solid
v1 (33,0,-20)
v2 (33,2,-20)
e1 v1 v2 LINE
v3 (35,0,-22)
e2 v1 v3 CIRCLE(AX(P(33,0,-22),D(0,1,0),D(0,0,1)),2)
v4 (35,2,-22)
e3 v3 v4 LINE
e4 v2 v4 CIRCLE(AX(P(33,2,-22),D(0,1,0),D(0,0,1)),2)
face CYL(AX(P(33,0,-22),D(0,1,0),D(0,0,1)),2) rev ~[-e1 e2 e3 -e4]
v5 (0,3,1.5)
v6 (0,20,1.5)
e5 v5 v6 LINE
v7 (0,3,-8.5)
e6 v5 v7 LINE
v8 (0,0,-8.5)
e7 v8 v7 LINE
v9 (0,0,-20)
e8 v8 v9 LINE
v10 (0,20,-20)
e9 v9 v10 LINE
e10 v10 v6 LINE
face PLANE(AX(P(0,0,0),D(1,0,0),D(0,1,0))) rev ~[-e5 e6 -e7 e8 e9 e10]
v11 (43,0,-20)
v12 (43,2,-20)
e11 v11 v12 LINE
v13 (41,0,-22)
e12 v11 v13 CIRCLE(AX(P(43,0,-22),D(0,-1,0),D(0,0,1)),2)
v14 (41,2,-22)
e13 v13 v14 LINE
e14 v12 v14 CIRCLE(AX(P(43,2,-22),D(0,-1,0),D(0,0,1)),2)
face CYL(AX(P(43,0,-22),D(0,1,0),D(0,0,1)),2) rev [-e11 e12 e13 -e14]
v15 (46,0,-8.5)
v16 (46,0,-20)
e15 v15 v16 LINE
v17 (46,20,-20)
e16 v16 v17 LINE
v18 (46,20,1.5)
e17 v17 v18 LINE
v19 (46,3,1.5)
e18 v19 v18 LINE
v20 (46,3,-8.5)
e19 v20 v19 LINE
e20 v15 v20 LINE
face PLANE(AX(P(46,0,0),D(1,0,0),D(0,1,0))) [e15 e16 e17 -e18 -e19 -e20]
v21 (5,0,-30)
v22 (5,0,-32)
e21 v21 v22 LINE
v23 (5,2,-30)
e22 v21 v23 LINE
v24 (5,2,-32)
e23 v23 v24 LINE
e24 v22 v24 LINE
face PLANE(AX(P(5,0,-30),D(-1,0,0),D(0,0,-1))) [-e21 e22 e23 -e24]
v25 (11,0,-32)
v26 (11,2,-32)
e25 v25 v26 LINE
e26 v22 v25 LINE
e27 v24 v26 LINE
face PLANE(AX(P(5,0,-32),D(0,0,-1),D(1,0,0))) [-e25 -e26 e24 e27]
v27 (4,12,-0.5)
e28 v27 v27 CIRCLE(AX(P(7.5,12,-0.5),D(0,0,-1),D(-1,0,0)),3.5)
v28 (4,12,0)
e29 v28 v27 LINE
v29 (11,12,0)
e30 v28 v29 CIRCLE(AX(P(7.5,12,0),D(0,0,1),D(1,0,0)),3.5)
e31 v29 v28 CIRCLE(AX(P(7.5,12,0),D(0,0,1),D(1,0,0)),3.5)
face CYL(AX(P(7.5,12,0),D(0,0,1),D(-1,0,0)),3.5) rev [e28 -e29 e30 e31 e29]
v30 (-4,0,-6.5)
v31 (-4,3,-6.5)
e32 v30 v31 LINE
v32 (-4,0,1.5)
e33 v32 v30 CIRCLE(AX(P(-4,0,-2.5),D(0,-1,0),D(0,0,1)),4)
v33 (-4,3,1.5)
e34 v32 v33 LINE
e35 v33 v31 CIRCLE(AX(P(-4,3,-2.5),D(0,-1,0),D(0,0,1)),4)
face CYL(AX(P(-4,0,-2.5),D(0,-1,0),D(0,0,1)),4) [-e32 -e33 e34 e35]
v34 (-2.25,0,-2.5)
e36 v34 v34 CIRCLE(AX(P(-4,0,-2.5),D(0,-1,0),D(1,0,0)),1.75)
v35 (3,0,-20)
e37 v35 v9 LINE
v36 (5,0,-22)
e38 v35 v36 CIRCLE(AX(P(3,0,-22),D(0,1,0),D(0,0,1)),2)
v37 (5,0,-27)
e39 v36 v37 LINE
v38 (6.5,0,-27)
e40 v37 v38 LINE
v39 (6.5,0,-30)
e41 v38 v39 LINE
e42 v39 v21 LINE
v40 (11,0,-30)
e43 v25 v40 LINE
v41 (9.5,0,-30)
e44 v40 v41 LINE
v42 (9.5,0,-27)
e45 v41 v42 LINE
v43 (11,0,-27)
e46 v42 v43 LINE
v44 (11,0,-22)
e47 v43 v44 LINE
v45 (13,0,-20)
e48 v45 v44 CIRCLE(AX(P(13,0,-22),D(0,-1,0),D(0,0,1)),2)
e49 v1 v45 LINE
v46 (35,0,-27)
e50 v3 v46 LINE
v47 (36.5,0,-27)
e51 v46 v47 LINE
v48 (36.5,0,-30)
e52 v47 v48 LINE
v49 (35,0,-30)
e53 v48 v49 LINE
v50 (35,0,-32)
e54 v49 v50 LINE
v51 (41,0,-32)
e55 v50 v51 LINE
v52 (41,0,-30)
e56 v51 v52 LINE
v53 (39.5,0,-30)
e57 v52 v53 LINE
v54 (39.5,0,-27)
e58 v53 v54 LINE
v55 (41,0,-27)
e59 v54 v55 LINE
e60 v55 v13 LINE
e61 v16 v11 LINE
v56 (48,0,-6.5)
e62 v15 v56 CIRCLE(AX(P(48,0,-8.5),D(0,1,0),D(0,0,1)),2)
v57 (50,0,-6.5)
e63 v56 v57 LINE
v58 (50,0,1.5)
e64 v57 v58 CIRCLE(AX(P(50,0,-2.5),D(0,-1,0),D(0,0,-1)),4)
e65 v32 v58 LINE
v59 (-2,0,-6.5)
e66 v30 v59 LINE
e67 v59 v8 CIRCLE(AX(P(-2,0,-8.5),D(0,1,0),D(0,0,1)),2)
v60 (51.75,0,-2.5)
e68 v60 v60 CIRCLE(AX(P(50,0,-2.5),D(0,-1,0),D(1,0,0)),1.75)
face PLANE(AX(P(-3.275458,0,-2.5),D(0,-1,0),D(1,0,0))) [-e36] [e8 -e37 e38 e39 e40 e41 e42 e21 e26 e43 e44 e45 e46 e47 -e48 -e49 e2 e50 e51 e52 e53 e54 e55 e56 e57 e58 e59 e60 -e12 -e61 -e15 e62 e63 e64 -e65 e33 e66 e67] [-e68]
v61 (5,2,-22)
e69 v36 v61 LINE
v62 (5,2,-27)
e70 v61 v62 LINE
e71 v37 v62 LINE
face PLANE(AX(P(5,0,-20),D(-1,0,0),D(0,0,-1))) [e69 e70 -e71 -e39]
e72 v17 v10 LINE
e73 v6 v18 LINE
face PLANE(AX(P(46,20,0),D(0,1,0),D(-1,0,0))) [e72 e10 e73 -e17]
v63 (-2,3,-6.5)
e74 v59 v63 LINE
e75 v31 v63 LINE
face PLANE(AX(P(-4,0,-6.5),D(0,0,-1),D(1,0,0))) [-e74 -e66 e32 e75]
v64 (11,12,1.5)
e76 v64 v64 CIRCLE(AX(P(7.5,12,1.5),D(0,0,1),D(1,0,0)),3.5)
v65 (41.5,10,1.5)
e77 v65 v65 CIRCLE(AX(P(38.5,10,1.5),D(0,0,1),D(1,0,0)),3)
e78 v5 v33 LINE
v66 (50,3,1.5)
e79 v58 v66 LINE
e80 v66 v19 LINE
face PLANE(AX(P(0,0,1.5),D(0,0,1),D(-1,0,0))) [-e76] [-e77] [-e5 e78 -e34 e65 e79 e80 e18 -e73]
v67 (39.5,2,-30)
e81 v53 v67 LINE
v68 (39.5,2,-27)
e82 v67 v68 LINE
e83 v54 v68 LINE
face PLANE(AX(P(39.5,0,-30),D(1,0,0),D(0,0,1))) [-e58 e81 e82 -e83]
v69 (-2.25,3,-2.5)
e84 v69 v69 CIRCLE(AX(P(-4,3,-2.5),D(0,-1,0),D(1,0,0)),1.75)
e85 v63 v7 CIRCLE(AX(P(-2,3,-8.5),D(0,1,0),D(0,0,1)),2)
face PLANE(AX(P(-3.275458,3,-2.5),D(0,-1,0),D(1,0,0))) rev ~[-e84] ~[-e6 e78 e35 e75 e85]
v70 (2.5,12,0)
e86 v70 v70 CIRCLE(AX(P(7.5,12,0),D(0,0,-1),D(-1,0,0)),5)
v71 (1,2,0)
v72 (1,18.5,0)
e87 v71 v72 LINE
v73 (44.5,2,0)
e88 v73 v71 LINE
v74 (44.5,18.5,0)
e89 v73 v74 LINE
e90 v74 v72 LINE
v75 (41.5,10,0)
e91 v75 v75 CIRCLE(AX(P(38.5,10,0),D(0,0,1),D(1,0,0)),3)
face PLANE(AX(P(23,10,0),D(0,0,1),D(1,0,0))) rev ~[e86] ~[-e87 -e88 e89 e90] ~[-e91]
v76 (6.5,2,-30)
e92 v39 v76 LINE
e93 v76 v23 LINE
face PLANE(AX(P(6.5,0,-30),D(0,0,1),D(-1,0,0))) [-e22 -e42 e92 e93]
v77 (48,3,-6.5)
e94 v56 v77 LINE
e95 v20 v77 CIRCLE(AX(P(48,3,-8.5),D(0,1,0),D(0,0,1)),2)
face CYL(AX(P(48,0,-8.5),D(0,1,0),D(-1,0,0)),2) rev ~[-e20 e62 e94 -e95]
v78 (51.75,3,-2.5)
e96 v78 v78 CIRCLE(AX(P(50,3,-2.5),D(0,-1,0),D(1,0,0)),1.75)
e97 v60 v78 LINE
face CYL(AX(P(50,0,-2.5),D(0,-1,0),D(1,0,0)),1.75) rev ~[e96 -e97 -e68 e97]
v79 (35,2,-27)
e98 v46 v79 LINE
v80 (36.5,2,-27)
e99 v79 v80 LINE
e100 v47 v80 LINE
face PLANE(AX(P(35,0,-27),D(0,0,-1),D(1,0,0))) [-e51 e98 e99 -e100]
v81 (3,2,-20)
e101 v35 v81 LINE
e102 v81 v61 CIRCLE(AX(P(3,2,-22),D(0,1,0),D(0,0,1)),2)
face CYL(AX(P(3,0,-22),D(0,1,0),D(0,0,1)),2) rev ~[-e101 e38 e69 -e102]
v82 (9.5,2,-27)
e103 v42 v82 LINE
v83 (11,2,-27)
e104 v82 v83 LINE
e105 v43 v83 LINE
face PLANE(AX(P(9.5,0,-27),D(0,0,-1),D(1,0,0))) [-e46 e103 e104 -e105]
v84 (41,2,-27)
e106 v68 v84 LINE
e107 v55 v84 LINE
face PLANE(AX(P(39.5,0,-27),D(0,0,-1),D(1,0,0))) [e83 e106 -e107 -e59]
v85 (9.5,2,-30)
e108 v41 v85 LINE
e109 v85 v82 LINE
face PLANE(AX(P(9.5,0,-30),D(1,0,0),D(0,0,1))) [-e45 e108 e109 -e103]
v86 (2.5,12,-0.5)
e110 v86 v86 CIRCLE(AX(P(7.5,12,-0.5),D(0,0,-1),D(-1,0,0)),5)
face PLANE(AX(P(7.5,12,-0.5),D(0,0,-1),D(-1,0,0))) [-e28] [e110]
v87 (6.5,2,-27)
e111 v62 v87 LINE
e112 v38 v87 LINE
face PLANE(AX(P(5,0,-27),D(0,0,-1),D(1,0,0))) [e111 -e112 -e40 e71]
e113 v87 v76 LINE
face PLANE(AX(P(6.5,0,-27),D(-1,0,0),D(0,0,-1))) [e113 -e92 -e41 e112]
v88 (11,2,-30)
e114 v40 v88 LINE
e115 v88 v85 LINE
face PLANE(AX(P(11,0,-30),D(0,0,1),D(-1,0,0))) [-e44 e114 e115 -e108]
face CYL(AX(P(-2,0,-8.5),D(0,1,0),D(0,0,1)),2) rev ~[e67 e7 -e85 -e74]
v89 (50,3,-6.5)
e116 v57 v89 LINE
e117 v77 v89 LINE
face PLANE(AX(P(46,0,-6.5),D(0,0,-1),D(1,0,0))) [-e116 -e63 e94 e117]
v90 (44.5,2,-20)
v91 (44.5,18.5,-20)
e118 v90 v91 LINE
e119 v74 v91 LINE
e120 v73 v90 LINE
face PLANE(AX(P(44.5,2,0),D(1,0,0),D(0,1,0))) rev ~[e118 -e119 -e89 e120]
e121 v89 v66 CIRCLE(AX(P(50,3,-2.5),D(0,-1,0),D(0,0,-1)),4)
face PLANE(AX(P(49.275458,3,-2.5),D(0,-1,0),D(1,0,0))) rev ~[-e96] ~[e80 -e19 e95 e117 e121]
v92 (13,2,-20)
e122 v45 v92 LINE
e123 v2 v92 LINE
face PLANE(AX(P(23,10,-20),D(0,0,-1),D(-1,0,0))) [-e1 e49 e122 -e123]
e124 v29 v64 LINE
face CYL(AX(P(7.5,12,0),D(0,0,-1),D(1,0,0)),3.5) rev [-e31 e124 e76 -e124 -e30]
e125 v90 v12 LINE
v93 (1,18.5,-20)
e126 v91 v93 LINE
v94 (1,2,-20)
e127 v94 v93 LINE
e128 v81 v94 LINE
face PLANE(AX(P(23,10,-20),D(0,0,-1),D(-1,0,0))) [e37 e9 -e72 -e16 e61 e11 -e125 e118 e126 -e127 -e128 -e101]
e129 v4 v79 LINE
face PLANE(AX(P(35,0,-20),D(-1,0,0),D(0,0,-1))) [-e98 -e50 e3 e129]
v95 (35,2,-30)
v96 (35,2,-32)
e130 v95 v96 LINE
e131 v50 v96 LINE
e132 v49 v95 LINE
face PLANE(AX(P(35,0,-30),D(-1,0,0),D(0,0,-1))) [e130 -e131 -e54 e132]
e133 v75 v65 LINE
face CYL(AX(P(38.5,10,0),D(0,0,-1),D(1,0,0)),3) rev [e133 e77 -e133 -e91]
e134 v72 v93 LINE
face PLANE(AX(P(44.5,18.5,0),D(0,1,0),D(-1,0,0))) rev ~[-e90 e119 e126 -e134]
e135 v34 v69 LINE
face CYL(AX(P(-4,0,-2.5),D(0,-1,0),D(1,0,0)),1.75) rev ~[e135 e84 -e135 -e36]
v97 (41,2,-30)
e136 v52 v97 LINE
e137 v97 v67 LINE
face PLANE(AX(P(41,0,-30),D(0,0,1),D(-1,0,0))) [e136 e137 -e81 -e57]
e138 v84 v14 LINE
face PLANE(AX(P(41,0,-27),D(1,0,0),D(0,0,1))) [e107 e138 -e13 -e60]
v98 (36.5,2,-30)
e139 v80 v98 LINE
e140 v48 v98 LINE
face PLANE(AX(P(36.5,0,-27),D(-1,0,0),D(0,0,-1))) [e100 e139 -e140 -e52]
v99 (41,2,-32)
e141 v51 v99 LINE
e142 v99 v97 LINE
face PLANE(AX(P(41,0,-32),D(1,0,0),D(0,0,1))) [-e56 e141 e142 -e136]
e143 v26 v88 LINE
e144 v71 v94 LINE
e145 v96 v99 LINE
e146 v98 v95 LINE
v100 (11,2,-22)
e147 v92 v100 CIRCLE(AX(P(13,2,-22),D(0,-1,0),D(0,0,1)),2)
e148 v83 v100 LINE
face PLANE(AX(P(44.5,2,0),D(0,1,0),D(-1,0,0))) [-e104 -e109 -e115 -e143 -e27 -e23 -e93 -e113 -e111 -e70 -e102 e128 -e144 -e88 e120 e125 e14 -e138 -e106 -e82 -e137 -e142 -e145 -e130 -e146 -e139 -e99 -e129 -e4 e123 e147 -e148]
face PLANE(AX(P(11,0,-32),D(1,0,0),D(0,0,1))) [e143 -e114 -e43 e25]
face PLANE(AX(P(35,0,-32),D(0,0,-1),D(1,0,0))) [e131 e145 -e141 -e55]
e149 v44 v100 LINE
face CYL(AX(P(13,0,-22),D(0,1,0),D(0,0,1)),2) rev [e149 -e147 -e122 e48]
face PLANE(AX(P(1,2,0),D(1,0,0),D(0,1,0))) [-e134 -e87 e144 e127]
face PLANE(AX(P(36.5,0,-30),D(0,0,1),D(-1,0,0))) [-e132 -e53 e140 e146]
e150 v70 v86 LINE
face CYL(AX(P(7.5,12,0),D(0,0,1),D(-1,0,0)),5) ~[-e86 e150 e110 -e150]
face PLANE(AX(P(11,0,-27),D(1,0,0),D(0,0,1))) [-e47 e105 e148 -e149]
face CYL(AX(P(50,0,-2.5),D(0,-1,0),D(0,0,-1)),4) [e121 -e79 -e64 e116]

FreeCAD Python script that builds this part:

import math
import FreeCAD as App
import Part
import Sketcher
Q = App.Units.Quantity


def edges_at(feature, points):
    """Names of the edges that pass closest to the given points."""
    edges = feature.Shape.Edges
    near = lambda p: min(range(len(edges)), key=lambda i: edges[i].distToShape(Part.Vertex(*p))[0])
    return sorted({f"Edge{near(p) + 1}" for p in points})


def add_polygon(sketch, points):
    """Adds a closed chain of lines whose ends are joined by coincident constraints."""
    first, n = sketch.GeometryCount, len(points)
    for a, b in zip(points, points[1:] + points[:1]):
        sketch.addGeometry(Part.LineSegment(App.Vector(*a, 0), App.Vector(*b, 0)), False)
    for i in range(n):
        sketch.addConstraint(Sketcher.Constraint("Coincident", first + i, 2, first + (i + 1) % n, 1))

doc = App.newDocument("Part")
body = doc.addObject("PartDesign::Body", "Body")

sketch1 = doc.addObject("Sketcher::SketchObject", "Sketch")
body.addObject(sketch1)
sketch1.AttachmentSupport = (doc.XY_Plane, [""])
sketch1.MapMode = "FlatFace"
add_polygon(sketch1, [(0, 20), (0, 0), (46, 0), (46, 20)])
sketch1.addGeometry(Part.Circle(App.Vector(38.5, 10, 0), App.Vector(0, 0, 1), 3), False)
sketch1.addGeometry(Part.Circle(App.Vector(7.5, 12, 0), App.Vector(0, 0, 1), 3.5), False)
sketch1.addConstraint(Sketcher.Constraint("Vertical", 0))
sketch1.addConstraint(Sketcher.Constraint("Horizontal", 1))
sketch1.addConstraint(Sketcher.Constraint("Vertical", 2))
sketch1.addConstraint(Sketcher.Constraint("Horizontal", 3))
sketch1.addConstraint(Sketcher.Constraint("Coincident", 0, 2, -1, 1))
sketch1.addConstraint(Sketcher.Constraint("Diameter", 4, Q("6 mm")))
sketch1.addConstraint(Sketcher.Constraint("Diameter", 5, Q("7 mm")))
sketch1.addConstraint(Sketcher.Constraint("DistanceX", 1, 1, 1, 2, Q("46 mm")))
sketch1.addConstraint(Sketcher.Constraint("DistanceY", 0, 2, 0, 1, Q("20 mm")))
sketch1.addConstraint(Sketcher.Constraint("DistanceY", -1, 1, 4, 3, Q("10 mm")))
sketch1.addConstraint(Sketcher.Constraint("DistanceY", -1, 1, 5, 3, Q("12 mm")))
sketch1.addConstraint(Sketcher.Constraint("DistanceX", 5, 3, 4, 3, Q("31 mm")))
sketch1.addConstraint(Sketcher.Constraint("DistanceX", -1, 1, 4, 3, Q("38.5 mm")))
pad1 = doc.addObject("PartDesign::Pad", "Pad")
body.addObject(pad1)
pad1.Profile = sketch1
pad1.Length = 1.5

sketch2 = doc.addObject("Sketcher::SketchObject", "Sketch001")
body.addObject(sketch2)
sketch2.AttachmentSupport = (doc.XY_Plane, [""])
sketch2.MapMode = "FlatFace"
sketch2.addGeometry(Part.Circle(App.Vector(7.5, 12, 0), App.Vector(0, 0, 1), 5), False)
sketch2.addGeometry(Part.Circle(App.Vector(7.5, 12, 0), App.Vector(0, 0, 1), 3.5), False)
sketch2.addConstraint(Sketcher.Constraint("Coincident", 1, 3, 0, 3))
sketch2.addConstraint(Sketcher.Constraint("Diameter", 0, Q("10 mm")))
sketch2.addConstraint(Sketcher.Constraint("Diameter", 1, Q("7 mm")))
sketch2.addConstraint(Sketcher.Constraint("DistanceY", -1, 1, 0, 3, Q("12 mm")))
sketch2.addConstraint(Sketcher.Constraint("DistanceX", -1, 1, 0, 3, Q("7.5 mm")))
pad2 = doc.addObject("PartDesign::Pad", "Pad001")
body.addObject(pad2)
pad2.Profile = sketch2
pad2.Length = 0.5
pad2.Reversed = True

sketch3 = doc.addObject("Sketcher::SketchObject", "Sketch002")
body.addObject(sketch3)
sketch3.AttachmentSupport = (doc.XY_Plane, [""])
sketch3.MapMode = "FlatFace"
add_polygon(sketch3, [(46, 20), (46, 0), (0, 0), (0, 20)])
add_polygon(sketch3, [(1, 2), (44, 2), (44, 18), (1, 18)])
sketch3.addConstraint(Sketcher.Constraint("Vertical", 0))
sketch3.addConstraint(Sketcher.Constraint("Horizontal", 1))
sketch3.addConstraint(Sketcher.Constraint("Vertical", 2))
sketch3.addConstraint(Sketcher.Constraint("Horizontal", 3))
sketch3.addConstraint(Sketcher.Constraint("Horizontal", 4))
sketch3.addConstraint(Sketcher.Constraint("Vertical", 5))
sketch3.addConstraint(Sketcher.Constraint("Horizontal", 6))
sketch3.addConstraint(Sketcher.Constraint("Vertical", 7))
sketch3.addConstraint(Sketcher.Constraint("Coincident", 1, 2, -1, 1))
sketch3.addConstraint(Sketcher.Constraint("DistanceX", 1, 2, 1, 1, Q("46 mm")))
sketch3.addConstraint(Sketcher.Constraint("DistanceY", 0, 2, 0, 1, Q("20 mm")))
sketch3.addConstraint(Sketcher.Constraint("DistanceX", 4, 1, 4, 2, Q("43.5 mm")))
sketch3.addConstraint(Sketcher.Constraint("DistanceY", 5, 1, 5, 2, Q("16.5 mm")))
sketch3.addConstraint(Sketcher.Constraint("DistanceY", -1, 1, 4, 2, Q("2 mm")))
sketch3.addConstraint(Sketcher.Constraint("DistanceX", -1, 1, 6, 2, Q("1 mm")))
pad3 = doc.addObject("PartDesign::Pad", "Pad002")
body.addObject(pad3)
pad3.Profile = sketch3
pad3.Length = 20
pad3.Reversed = True

sketch4 = doc.addObject("Sketcher::SketchObject", "Sketch003")
body.addObject(sketch4)
sketch4.AttachmentSupport = (doc.XZ_Plane, [""])
sketch4.MapMode = "FlatFace"
sketch4.addGeometry(Part.LineSegment(App.Vector(0, 1.5, 0), App.Vector(-4, 1.5, 0)), False)
sketch4.addGeometry(Part.ArcOfCircle(Part.Circle(App.Vector(-4, -2.5, 0), App.Vector(0, 0, 1), 4), math.radians(90), math.radians(270)), False)
sketch4.addGeometry(Part.LineSegment(App.Vector(-4, -6.5, 0), App.Vector(0, -6.5, 0)), False)
sketch4.addGeometry(Part.LineSegment(App.Vector(0, -6.5, 0), App.Vector(0, 1.5, 0)), False)
sketch4.addGeometry(Part.Circle(App.Vector(-4, -2.5, 0), App.Vector(0, 0, 1), 1.8), False)
sketch4.addGeometry(Part.LineSegment(App.Vector(50, 1.5, 0), App.Vector(46, 1.5, 0)), False)
sketch4.addGeometry(Part.LineSegment(App.Vector(46, 1.5, 0), App.Vector(46, -6.5, 0)), False)
sketch4.addGeometry(Part.LineSegment(App.Vector(46, -6.5, 0), App.Vector(50, -6.5, 0)), False)
sketch4.addGeometry(Part.ArcOfCircle(Part.Circle(App.Vector(50, -2.5, 0), App.Vector(0, 0, 1), 4), math.radians(-90), math.radians(90)), False)
sketch4.addGeometry(Part.Circle(App.Vector(50, -2.5, 0), App.Vector(0, 0, 1), 1.8), False)
sketch4.addConstraint(Sketcher.Constraint("Tangent", 0, 2, 1, 1))
sketch4.addConstraint(Sketcher.Constraint("Tangent", 1, 2, 2, 1))
sketch4.addConstraint(Sketcher.Constraint("Coincident", 2, 2, 3, 1))
sketch4.addConstraint(Sketcher.Constraint("Coincident", 3, 2, 0, 1))
sketch4.addConstraint(Sketcher.Constraint("Coincident", 5, 2, 6, 1))
sketch4.addConstraint(Sketcher.Constraint("Coincident", 6, 2, 7, 1))
sketch4.addConstraint(Sketcher.Constraint("Tangent", 7, 2, 8, 1))
sketch4.addConstraint(Sketcher.Constraint("Tangent", 8, 2, 5, 1))
sketch4.addConstraint(Sketcher.Constraint("Horizontal", 0))
sketch4.addConstraint(Sketcher.Constraint("Horizontal", 2))
sketch4.addConstraint(Sketcher.Constraint("Vertical", 3))
sketch4.addConstraint(Sketcher.Constraint("Horizontal", 5))
sketch4.addConstraint(Sketcher.Constraint("Vertical", 6))
sketch4.addConstraint(Sketcher.Constraint("Horizontal", 7))
sketch4.addConstraint(Sketcher.Constraint("Coincident", 4, 3, 1, 3))
sketch4.addConstraint(Sketcher.Constraint("Coincident", 9, 3, 8, 3))
sketch4.addConstraint(Sketcher.Constraint("Equal", 1, 8))
sketch4.addConstraint(Sketcher.Constraint("Equal", 4, 9))
sketch4.addConstraint(Sketcher.Constraint("PointOnObject", 2, 2, -2))
sketch4.addConstraint(Sketcher.Constraint("Horizontal", 4, 3, 8, 3))
sketch4.addConstraint(Sketcher.Constraint("Equal", 2, 5))
sketch4.addConstraint(Sketcher.Constraint("Radius", 1, Q("4 mm")))
sketch4.addConstraint(Sketcher.Constraint("Diameter", 4, Q("3.5 mm")))
sketch4.addConstraint(Sketcher.Constraint("DistanceX", 0, 2, 0, 1, Q("4 mm")))
sketch4.addConstraint(Sketcher.Constraint("DistanceX", -1, 1, 8, 3, Q("50 mm")))
sketch4.addConstraint(Sketcher.Constraint("DistanceY", 1, 3, -1, 1, Q("2.5 mm")))
pad4 = doc.addObject("PartDesign::Pad", "Pad003")
body.addObject(pad4)
pad4.Profile = sketch4
pad4.Length = 3
pad4.Reversed = True
doc.recompute()

fillet = doc.addObject("PartDesign::Fillet", "Fillet")
body.addObject(fillet)
fillet.Base = (pad4, edges_at(pad4, [(0, 1.5, -6.5), (46, 1.5, -6.5)]))
fillet.Radius = 2

sketch5 = doc.addObject("Sketcher::SketchObject", "Sketch004")
body.addObject(sketch5)
sketch5.AttachmentSupport = (doc.XZ_Plane, [""])
sketch5.MapMode = "FlatFace"
add_polygon(sketch5, [(41, -20), (35, -20), (35, -27), (36.5, -27), (36.5, -30), (35, -30), (35, -32), (41, -32), (41, -30), (39.5, -30), (39.5, -27), (41, -27)])
add_polygon(sketch5, [(11, -20), (5, -20), (5, -27), (6.5, -27), (6.5, -30), (5, -30), (5, -32), (11, -32), (11, -30), (9.5, -30), (9.5, -27), (11, -27)])
sketch5.addConstraint(Sketcher.Constraint("Horizontal", 0))
sketch5.addConstraint(Sketcher.Constraint("Vertical", 1))
sketch5.addConstraint(Sketcher.Constraint("Horizontal", 2))
sketch5.addConstraint(Sketcher.Constraint("Vertical", 3))
sketch5.addConstraint(Sketcher.Constraint("Horizontal", 4))
sketch5.addConstraint(Sketcher.Constraint("Vertical", 5))
sketch5.addConstraint(Sketcher.Constraint("Horizontal", 6))
sketch5.addConstraint(Sketcher.Constraint("Vertical", 7))
sketch5.addConstraint(Sketcher.Constraint("Horizontal", 8))
sketch5.addConstraint(Sketcher.Constraint("Vertical", 9))
sketch5.addConstraint(Sketcher.Constraint("Horizontal", 10))
sketch5.addConstraint(Sketcher.Constraint("Vertical", 11))
sketch5.addConstraint(Sketcher.Constraint("Horizontal", 12))
sketch5.addConstraint(Sketcher.Constraint("Vertical", 13))
sketch5.addConstraint(Sketcher.Constraint("Horizontal", 14))
sketch5.addConstraint(Sketcher.Constraint("Vertical", 15))
sketch5.addConstraint(Sketcher.Constraint("Horizontal", 16))
sketch5.addConstraint(Sketcher.Constraint("Vertical", 17))
sketch5.addConstraint(Sketcher.Constraint("Horizontal", 18))
sketch5.addConstraint(Sketcher.Constraint("Vertical", 19))
sketch5.addConstraint(Sketcher.Constraint("Horizontal", 20))
sketch5.addConstraint(Sketcher.Constraint("Vertical", 21))
sketch5.addConstraint(Sketcher.Constraint("Horizontal", 22))
sketch5.addConstraint(Sketcher.Constraint("Vertical", 23))
sketch5.addConstraint(Sketcher.Constraint("Horizontal", 4, 2, 7, 2))
sketch5.addConstraint(Sketcher.Constraint("Horizontal", 2, 2, 9, 2))
sketch5.addConstraint(Sketcher.Constraint("Horizontal", 11, 2, 12, 2))
sketch5.addConstraint(Sketcher.Constraint("Horizontal", 10, 2, 13, 2))
sketch5.addConstraint(Sketcher.Constraint("Horizontal", 8, 2, 15, 2))
sketch5.addConstraint(Sketcher.Constraint("Horizontal", 6, 2, 17, 2))
sketch5.addConstraint(Sketcher.Constraint("Horizontal", 16, 2, 19, 2))
sketch5.addConstraint(Sketcher.Constraint("Horizontal", 14, 2, 21, 2))
sketch5.addConstraint(Sketcher.Constraint("Vertical", 1, 2, 4, 2))
sketch5.addConstraint(Sketcher.Constraint("Vertical", 7, 2, 10, 2))
sketch5.addConstraint(Sketcher.Constraint("Vertical", 13, 2, 16, 2))
sketch5.addConstraint(Sketcher.Constraint("Vertical", 19, 2, 22, 2))
sketch5.addConstraint(Sketcher.Constraint("Equal", 4, 8))
sketch5.addConstraint(Sketcher.Constraint("Equal", 6, 12))
sketch5.addConstraint(Sketcher.Constraint("Equal", 10, 14))
sketch5.addConstraint(Sketcher.Constraint("Equal", 16, 20))
sketch5.addConstraint(Sketcher.Constraint("DistanceX", 0, 2, 0, 1, Q("6 mm")))
sketch5.addConstraint(Sketcher.Constraint("DistanceY", 1, 2, 1, 1, Q("7 mm")))
sketch5.addConstraint(Sketcher.Constraint("DistanceY", 3, 2, 3, 1, Q("3 mm")))
sketch5.addConstraint(Sketcher.Constraint("DistanceY", 5, 2, 5, 1, Q("2 mm")))
sketch5.addConstraint(Sketcher.Constraint("DistanceX", 2, 1, 2, 2, Q("1.5 mm")))
sketch5.addConstraint(Sketcher.Constraint("DistanceX", -1, 1, 0, 2, Q("35 mm")))
sketch5.addConstraint(Sketcher.Constraint("DistanceY", 0, 2, -1, 1, Q("20 mm")))
sketch5.addConstraint(Sketcher.Constraint("DistanceX", -1, 1, 12, 2, Q("5 mm")))
pad5 = doc.addObject("PartDesign::Pad", "Pad004")
body.addObject(pad5)
pad5.Profile = sketch5
pad5.Length = 2
pad5.Reversed = True
doc.recompute()

fillet2 = doc.addObject("PartDesign::Fillet", "Fillet001")
body.addObject(fillet2)
fillet2.Base = (pad5, edges_at(pad5, [
    (41, 1, -20),
    (35, 1, -20),
    (11, 1, -20),
    (5, 1, -20),
]))
fillet2.Radius = 2

doc.recompute()
